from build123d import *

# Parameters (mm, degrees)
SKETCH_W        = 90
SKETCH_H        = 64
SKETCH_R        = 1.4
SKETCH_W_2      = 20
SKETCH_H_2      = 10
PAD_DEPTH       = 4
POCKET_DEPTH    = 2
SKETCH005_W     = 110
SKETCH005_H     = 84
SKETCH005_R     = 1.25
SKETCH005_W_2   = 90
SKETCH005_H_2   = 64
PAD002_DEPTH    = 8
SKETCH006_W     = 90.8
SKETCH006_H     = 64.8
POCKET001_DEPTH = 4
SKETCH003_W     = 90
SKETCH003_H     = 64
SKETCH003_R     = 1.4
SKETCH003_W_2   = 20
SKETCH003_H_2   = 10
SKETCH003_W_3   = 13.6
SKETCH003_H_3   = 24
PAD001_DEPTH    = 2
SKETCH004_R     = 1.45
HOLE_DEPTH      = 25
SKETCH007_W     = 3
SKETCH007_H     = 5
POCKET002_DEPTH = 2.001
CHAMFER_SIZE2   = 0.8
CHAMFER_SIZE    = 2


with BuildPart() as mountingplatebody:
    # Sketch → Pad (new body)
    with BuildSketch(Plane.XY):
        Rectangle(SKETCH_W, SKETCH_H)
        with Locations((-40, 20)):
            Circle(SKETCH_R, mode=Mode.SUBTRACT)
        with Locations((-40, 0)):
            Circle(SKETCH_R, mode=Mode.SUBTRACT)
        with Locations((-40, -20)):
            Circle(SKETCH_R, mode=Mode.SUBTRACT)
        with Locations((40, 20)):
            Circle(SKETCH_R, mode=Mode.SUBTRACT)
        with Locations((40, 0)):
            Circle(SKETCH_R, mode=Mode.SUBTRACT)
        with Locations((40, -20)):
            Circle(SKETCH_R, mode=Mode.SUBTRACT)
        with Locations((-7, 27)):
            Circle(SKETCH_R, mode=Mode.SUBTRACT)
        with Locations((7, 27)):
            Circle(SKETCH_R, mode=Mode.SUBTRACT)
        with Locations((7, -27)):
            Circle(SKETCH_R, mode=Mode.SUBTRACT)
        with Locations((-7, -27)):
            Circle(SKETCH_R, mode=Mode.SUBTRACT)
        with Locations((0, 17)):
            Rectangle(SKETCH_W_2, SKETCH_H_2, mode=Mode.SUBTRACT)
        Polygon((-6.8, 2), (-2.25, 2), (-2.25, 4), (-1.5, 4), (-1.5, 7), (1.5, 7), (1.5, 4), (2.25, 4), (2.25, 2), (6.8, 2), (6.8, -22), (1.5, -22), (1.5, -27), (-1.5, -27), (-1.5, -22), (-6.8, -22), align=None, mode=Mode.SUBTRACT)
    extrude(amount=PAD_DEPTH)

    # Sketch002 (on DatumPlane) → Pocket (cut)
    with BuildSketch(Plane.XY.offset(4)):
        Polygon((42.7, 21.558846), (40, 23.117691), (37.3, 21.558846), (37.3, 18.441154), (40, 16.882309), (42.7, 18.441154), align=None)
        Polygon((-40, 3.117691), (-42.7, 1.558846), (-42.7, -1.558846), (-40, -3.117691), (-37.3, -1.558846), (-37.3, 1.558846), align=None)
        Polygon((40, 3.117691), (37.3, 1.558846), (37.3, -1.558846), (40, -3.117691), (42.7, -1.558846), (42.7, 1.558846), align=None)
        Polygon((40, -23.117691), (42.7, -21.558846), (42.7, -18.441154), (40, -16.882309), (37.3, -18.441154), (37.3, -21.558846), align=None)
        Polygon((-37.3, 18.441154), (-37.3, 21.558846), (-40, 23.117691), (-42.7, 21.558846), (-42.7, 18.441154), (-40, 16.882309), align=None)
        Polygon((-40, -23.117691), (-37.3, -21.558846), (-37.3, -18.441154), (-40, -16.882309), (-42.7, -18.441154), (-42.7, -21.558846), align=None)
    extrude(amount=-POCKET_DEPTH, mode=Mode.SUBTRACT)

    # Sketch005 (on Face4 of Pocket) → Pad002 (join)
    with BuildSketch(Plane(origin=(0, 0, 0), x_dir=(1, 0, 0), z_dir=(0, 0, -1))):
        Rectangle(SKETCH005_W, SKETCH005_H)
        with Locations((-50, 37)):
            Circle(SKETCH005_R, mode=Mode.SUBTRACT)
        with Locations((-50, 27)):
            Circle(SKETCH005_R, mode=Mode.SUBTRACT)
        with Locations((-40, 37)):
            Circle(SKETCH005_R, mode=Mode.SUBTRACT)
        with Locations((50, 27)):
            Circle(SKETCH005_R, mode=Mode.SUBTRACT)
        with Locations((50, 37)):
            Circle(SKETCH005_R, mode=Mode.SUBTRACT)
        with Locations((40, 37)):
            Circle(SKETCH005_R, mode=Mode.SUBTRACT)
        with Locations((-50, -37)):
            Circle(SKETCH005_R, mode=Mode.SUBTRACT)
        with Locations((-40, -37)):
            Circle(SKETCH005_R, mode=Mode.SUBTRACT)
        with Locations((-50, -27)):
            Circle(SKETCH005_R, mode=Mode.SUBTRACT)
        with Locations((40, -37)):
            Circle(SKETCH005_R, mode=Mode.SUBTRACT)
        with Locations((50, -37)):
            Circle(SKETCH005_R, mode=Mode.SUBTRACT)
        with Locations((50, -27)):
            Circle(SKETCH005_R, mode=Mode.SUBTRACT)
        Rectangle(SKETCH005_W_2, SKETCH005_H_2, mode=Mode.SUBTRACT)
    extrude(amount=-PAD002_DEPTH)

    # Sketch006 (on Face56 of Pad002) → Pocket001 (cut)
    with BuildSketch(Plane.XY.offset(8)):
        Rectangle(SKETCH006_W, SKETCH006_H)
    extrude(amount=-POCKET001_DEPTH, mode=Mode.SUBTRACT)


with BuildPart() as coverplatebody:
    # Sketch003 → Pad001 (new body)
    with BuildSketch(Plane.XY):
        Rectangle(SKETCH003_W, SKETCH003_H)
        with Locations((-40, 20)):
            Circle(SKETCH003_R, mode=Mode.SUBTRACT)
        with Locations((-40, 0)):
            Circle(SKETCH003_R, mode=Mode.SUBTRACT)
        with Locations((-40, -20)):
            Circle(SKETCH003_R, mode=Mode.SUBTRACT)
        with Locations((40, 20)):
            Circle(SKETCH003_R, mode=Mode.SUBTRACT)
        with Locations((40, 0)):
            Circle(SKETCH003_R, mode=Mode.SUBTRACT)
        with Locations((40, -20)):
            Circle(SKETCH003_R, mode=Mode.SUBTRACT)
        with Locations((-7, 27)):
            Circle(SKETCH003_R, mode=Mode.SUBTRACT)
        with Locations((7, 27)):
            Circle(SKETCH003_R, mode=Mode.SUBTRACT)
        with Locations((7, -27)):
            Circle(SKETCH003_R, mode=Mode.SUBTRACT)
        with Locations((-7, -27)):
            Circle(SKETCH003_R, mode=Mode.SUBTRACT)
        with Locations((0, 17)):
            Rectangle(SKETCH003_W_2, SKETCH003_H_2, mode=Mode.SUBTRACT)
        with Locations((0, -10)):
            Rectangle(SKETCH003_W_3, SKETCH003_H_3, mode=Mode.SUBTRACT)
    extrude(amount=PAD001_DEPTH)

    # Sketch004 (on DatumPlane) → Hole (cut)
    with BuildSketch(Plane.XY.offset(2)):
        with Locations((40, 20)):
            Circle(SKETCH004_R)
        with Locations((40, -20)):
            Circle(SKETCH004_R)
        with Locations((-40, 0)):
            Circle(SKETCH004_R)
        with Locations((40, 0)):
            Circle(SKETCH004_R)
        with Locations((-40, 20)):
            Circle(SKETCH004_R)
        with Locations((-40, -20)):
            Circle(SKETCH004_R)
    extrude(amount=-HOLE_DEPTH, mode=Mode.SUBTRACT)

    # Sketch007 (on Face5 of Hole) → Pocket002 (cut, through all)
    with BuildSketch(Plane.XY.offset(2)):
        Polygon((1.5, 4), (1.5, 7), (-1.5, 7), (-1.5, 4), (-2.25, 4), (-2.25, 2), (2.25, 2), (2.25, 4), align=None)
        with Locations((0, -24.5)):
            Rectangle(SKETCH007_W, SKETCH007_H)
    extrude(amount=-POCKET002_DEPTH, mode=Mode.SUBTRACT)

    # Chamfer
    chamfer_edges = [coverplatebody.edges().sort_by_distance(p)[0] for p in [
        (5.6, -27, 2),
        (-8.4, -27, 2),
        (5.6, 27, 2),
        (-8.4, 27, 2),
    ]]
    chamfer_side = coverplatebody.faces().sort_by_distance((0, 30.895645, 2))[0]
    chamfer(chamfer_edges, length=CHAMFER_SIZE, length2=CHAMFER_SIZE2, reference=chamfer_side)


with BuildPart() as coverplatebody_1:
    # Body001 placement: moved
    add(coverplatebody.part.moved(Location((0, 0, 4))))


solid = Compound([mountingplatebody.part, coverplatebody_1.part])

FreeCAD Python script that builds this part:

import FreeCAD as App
import Part
import Sketcher
Q = App.Units.Quantity


def edges_at(feature, points):
    """Names of the edges that pass closest to the given points."""
    edges = feature.Shape.Edges
    near = lambda p: min(range(len(edges)), key=lambda i: edges[i].distToShape(Part.Vertex(*p))[0])
    return sorted({f"Edge{near(p) + 1}" for p in points})

doc = App.newDocument("Part")
body = doc.addObject("PartDesign::Body", "Body")

# Sketch on XY plane
sketch1 = doc.addObject("Sketcher::SketchObject", "Sketch")
body.addObject(sketch1)
sketch1.AttachmentSupport = (doc.XY_Plane, [""])
sketch1.MapMode = "FlatFace"
sketch1.addGeometry([
    Part.LineSegment(App.Vector(-45, 32, 0), App.Vector(-45, -32, 0)),  # 0
    Part.LineSegment(App.Vector(-45, -32, 0), App.Vector(45, -32, 0)),  # 1
    Part.LineSegment(App.Vector(45, -32, 0), App.Vector(45, 32, 0)),  # 2
    Part.LineSegment(App.Vector(45, 32, 0), App.Vector(-45, 32, 0)),  # 3
    Part.Circle(App.Vector(-40, -20, 0), App.Vector(0, 0, 1), 1.4),  # 4
    Part.Circle(App.Vector(-7, -27, 0), App.Vector(0, 0, 1), 1.4),  # 5
    Part.Circle(App.Vector(7, -27, 0), App.Vector(0, 0, 1), 1.4),  # 6
    Part.Circle(App.Vector(40, -20, 0), App.Vector(0, 0, 1), 1.4),  # 7
    Part.LineSegment(App.Vector(-6.8, -22, 0), App.Vector(-6.8, 2, 0)),  # 8
    Part.LineSegment(App.Vector(-6.8, 2, 0), App.Vector(-2.2, 2, 0)),  # 9
    Part.LineSegment(App.Vector(-2.2, 2, 0), App.Vector(-2.2, 4, 0)),  # 10
    Part.LineSegment(App.Vector(-2.2, 4, 0), App.Vector(-1.5, 4, 0)),  # 11
    Part.LineSegment(App.Vector(-1.5, 4, 0), App.Vector(-1.5, 7, 0)),  # 12
    Part.LineSegment(App.Vector(-1.5, 7, 0), App.Vector(1.5, 7, 0)),  # 13
    Part.LineSegment(App.Vector(1.5, 7, 0), App.Vector(1.5, 4, 0)),  # 14
    Part.LineSegment(App.Vector(1.5, 4, 0), App.Vector(2.2, 4, 0)),  # 15
    Part.LineSegment(App.Vector(2.2, 4, 0), App.Vector(2.2, 2, 0)),  # 16
    Part.LineSegment(App.Vector(2.2, 2, 0), App.Vector(6.8, 2, 0)),  # 17
    Part.LineSegment(App.Vector(6.8, 2, 0), App.Vector(6.8, -22, 0)),  # 18
    Part.LineSegment(App.Vector(6.8, -22, 0), App.Vector(1.5, -22, 0)),  # 19
    Part.LineSegment(App.Vector(1.5, -22, 0), App.Vector(1.5, -27, 0)),  # 20
    Part.LineSegment(App.Vector(1.5, -27, 0), App.Vector(-1.5, -27, 0)),  # 21
    Part.LineSegment(App.Vector(-1.5, -27, 0), App.Vector(-1.5, -22, 0)),  # 22
    Part.LineSegment(App.Vector(-1.5, -22, 0), App.Vector(-6.8, -22, 0)),  # 23
    Part.Circle(App.Vector(-40, 0, 0), App.Vector(0, 0, 1), 1.4),  # 24
    Part.Circle(App.Vector(-40, 20, 0), App.Vector(0, 0, 1), 1.4),  # 25
    Part.Circle(App.Vector(-7, 27, 0), App.Vector(0, 0, 1), 1.4),  # 26
    Part.Circle(App.Vector(40, 0, 0), App.Vector(0, 0, 1), 1.4),  # 27
    Part.LineSegment(App.Vector(10, 12, 0), App.Vector(-10, 12, 0)),  # 28
    Part.LineSegment(App.Vector(-10, 12, 0), App.Vector(-10, 22, 0)),  # 29
    Part.LineSegment(App.Vector(-10, 22, 0), App.Vector(10, 22, 0)),  # 30
    Part.LineSegment(App.Vector(10, 22, 0), App.Vector(10, 12, 0)),  # 31
    Part.Circle(App.Vector(7, 27, 0), App.Vector(0, 0, 1), 1.4),  # 32
    Part.Circle(App.Vector(40, 20, 0), App.Vector(0, 0, 1), 1.4),  # 33
], False)
sketch1.addConstraint([
    Sketcher.Constraint("Coincident", 0, 2, 1, 1),
    Sketcher.Constraint("Coincident", 1, 2, 2, 1),
    Sketcher.Constraint("Coincident", 2, 2, 3, 1),
    Sketcher.Constraint("Coincident", 3, 2, 0, 1),
    Sketcher.Constraint("Coincident", 8, 2, 9, 1),
    Sketcher.Constraint("Coincident", 9, 2, 10, 1),
    Sketcher.Constraint("Coincident", 10, 2, 11, 1),
    Sketcher.Constraint("Coincident", 11, 2, 12, 1),
    Sketcher.Constraint("Coincident", 12, 2, 13, 1),
    Sketcher.Constraint("Coincident", 13, 2, 14, 1),
    Sketcher.Constraint("Coincident", 14, 2, 15, 1),
    Sketcher.Constraint("Coincident", 15, 2, 16, 1),
    Sketcher.Constraint("Coincident", 16, 2, 17, 1),
    Sketcher.Constraint("Coincident", 17, 2, 18, 1),
    Sketcher.Constraint("Coincident", 18, 2, 19, 1),
    Sketcher.Constraint("Coincident", 19, 2, 20, 1),
    Sketcher.Constraint("Coincident", 20, 2, 21, 1),
    Sketcher.Constraint("Coincident", 21, 2, 22, 1),
    Sketcher.Constraint("Coincident", 22, 2, 23, 1),
    Sketcher.Constraint("Coincident", 23, 2, 8, 1),
    Sketcher.Constraint("Coincident", 28, 2, 29, 1),
    Sketcher.Constraint("Coincident", 29, 2, 30, 1),
    Sketcher.Constraint("Coincident", 30, 2, 31, 1),
    Sketcher.Constraint("Coincident", 31, 2, 28, 1),
    Sketcher.Constraint("Vertical", 0),
    Sketcher.Constraint("Horizontal", 1),
    Sketcher.Constraint("Vertical", 2),
    Sketcher.Constraint("Horizontal", 3),
    Sketcher.Constraint("Vertical", 8),
    Sketcher.Constraint("Horizontal", 9),
    Sketcher.Constraint("Vertical", 10),
    Sketcher.Constraint("Horizontal", 11),
    Sketcher.Constraint("Vertical", 12),
    Sketcher.Constraint("Horizontal", 13),
    Sketcher.Constraint("Vertical", 14),
    Sketcher.Constraint("Horizontal", 15),
    Sketcher.Constraint("Vertical", 16),
    Sketcher.Constraint("Horizontal", 17),
    Sketcher.Constraint("Vertical", 18),
    Sketcher.Constraint("Horizontal", 19),
    Sketcher.Constraint("Vertical", 20),
    Sketcher.Constraint("Horizontal", 21),
    Sketcher.Constraint("Vertical", 22),
    Sketcher.Constraint("Horizontal", 23),
    Sketcher.Constraint("Horizontal", 28),
    Sketcher.Constraint("Vertical", 29),
    Sketcher.Constraint("Horizontal", 30),
    Sketcher.Constraint("Vertical", 31),
    Sketcher.Constraint("Equal", 4, 5),
    Sketcher.Constraint("Equal", 5, 6),
    Sketcher.Constraint("Equal", 6, 7),
    Sketcher.Constraint("Equal", 7, 24),
    Sketcher.Constraint("Equal", 24, 25),
    Sketcher.Constraint("Equal", 25, 26),
    Sketcher.Constraint("Equal", 26, 27),
    Sketcher.Constraint("Equal", 27, 32),
    Sketcher.Constraint("Equal", 32, 33),
    Sketcher.Constraint("Symmetric", 7, 3, 25, 3, -1, 1),
    Sketcher.Constraint("Symmetric", 6, 3, 26, 3, -1, 1),
    Sketcher.Constraint("Symmetric", 24, 3, 27, 3, -1, 1),
    Sketcher.Constraint("Symmetric", 5, 3, 32, 3, -1, 1),
    Sketcher.Constraint("Symmetric", 4, 3, 33, 3, -1, 1),
    Sketcher.Constraint("Symmetric", 0, 2, 2, 2, -1, 1),
    Sketcher.Constraint("Symmetric", 5, 3, 6, 3, -2),
    Sketcher.Constraint("Symmetric", 4, 3, 7, 3, -2),
    Sketcher.Constraint("Symmetric", 11, 2, 14, 2, -2),
    Sketcher.Constraint("Symmetric", 9, 2, 16, 2, -2),
    Sketcher.Constraint("Symmetric", 19, 2, 22, 2, -2),
    Sketcher.Constraint("PointOnObject", 24, 3, -1),
    Sketcher.Constraint("Horizontal", 6, 3, 20, 2),
    Sketcher.Constraint("Vertical", 4, 3, 24, 3),
    Sketcher.Constraint("Vertical", 14, 2, 19, 2),
    Sketcher.Constraint("Equal", 9, 17),
    Sketcher.Constraint("Equal", 21, 12),
    Sketcher.Constraint("Diameter", 4, 2.8),
    Sketcher.Constraint("DistanceX", 1, 1, 1, 2, 90.0),
    Sketcher.Constraint("DistanceX", 13, 1, 13, 2, 3.0),
    Sketcher.Constraint("DistanceX", 28, 2, 28, 1, 20.0),
    Sketcher.Constraint("DistanceY", 0, 2, 0, 1, 64.0),
    Sketcher.Constraint("DistanceY", 8, 1, 8, 2, 24.0),
    Sketcher.Constraint("DistanceY", 10, 1, 10, 2, 2.0),
    Sketcher.Constraint("DistanceY", 20, 2, 20, 1, 5.0),
    Sketcher.Constraint("DistanceY", 29, 1, 29, 2, 10.0),
    Sketcher.Constraint("DistanceX", 19, 2, 19, 1, 5.3),
    Sketcher.Constraint("DistanceX", 4, 3, -1, 1, 40.0),
    Sketcher.Constraint("DistanceY", 4, 3, -1, 1, 20.0),
    Sketcher.Constraint("DistanceX", 5, 3, -1, 1, 7.0),
    Sketcher.Constraint("DistanceY", 5, 3, -1, 1, 27.0),
    Sketcher.Constraint("DistanceX", 28, 2, -1, 1, 10.0),
    Sketcher.Constraint("DistanceY", -1, 1, 28, 2, 12.0),
    Sketcher.Constraint("DistanceX", 9, 1, 9, 2, 4.55),
])
pad1 = doc.addObject("PartDesign::Pad", "Pad")
body.addObject(pad1)
pad1.Profile = sketch1
pad1.Length = 4

# Sketch on XY plane
sketch2 = doc.addObject("Sketcher::SketchObject", "Sketch001")
body.addObject(sketch2)
sketch2.AttachmentSupport = (doc.XY_Plane, [""])
sketch2.MapMode = "FlatFace"
sketch2.AttachmentOffset = App.Placement(App.Vector(0, 0, 4), App.Rotation())
sketch2.addGeometry([
    Part.LineSegment(App.Vector(42.7, 21.6, 0), App.Vector(40, 23.1, 0)),  # 0
    Part.LineSegment(App.Vector(40, 23.1, 0), App.Vector(37.3, 21.6, 0)),  # 1
    Part.LineSegment(App.Vector(37.3, 21.6, 0), App.Vector(37.3, 18.4, 0)),  # 2
    Part.LineSegment(App.Vector(37.3, 18.4, 0), App.Vector(40, 16.9, 0)),  # 3
    Part.LineSegment(App.Vector(40, 16.9, 0), App.Vector(42.7, 18.4, 0)),  # 4
    Part.LineSegment(App.Vector(42.7, 18.4, 0), App.Vector(42.7, 21.6, 0)),  # 5
    Part.LineSegment(App.Vector(-40, 3.1, 0), App.Vector(-42.7, 1.6, 0)),  # 6
    Part.LineSegment(App.Vector(-42.7, 1.6, 0), App.Vector(-42.7, -1.6, 0)),  # 7
    Part.LineSegment(App.Vector(-42.7, -1.6, 0), App.Vector(-40, -3.1, 0)),  # 8
    Part.LineSegment(App.Vector(-40, -3.1, 0), App.Vector(-37.3, -1.6, 0)),  # 9
    Part.LineSegment(App.Vector(-37.3, -1.6, 0), App.Vector(-37.3, 1.6, 0)),  # 10
    Part.LineSegment(App.Vector(-37.3, 1.6, 0), App.Vector(-40, 3.1, 0)),  # 11
    Part.LineSegment(App.Vector(40, 3.1, 0), App.Vector(37.3, 1.6, 0)),  # 12
    Part.LineSegment(App.Vector(37.3, 1.6, 0), App.Vector(37.3, -1.6, 0)),  # 13
    Part.LineSegment(App.Vector(37.3, -1.6, 0), App.Vector(40, -3.1, 0)),  # 14
    Part.LineSegment(App.Vector(40, -3.1, 0), App.Vector(42.7, -1.6, 0)),  # 15
    Part.LineSegment(App.Vector(42.7, -1.6, 0), App.Vector(42.7, 1.6, 0)),  # 16
    Part.LineSegment(App.Vector(42.7, 1.6, 0), App.Vector(40, 3.1, 0)),  # 17
    Part.LineSegment(App.Vector(40, -23.1, 0), App.Vector(42.7, -21.6, 0)),  # 18
    Part.LineSegment(App.Vector(42.7, -21.6, 0), App.Vector(42.7, -18.4, 0)),  # 19
    Part.LineSegment(App.Vector(42.7, -18.4, 0), App.Vector(40, -16.9, 0)),  # 20
    Part.LineSegment(App.Vector(40, -16.9, 0), App.Vector(37.3, -18.4, 0)),  # 21
    Part.LineSegment(App.Vector(37.3, -18.4, 0), App.Vector(37.3, -21.6, 0)),  # 22
    Part.LineSegment(App.Vector(37.3, -21.6, 0), App.Vector(40, -23.1, 0)),  # 23
    Part.LineSegment(App.Vector(-37.3, 18.4, 0), App.Vector(-37.3, 21.6, 0)),  # 24
    Part.LineSegment(App.Vector(-37.3, 21.6, 0), App.Vector(-40, 23.1, 0)),  # 25
    Part.LineSegment(App.Vector(-40, 23.1, 0), App.Vector(-42.7, 21.6, 0)),  # 26
    Part.LineSegment(App.Vector(-42.7, 21.6, 0), App.Vector(-42.7, 18.4, 0)),  # 27
    Part.LineSegment(App.Vector(-42.7, 18.4, 0), App.Vector(-40, 16.9, 0)),  # 28
    Part.LineSegment(App.Vector(-40, 16.9, 0), App.Vector(-37.3, 18.4, 0)),  # 29
    Part.LineSegment(App.Vector(-40, -23.1, 0), App.Vector(-37.3, -21.6, 0)),  # 30
    Part.LineSegment(App.Vector(-37.3, -21.6, 0), App.Vector(-37.3, -18.4, 0)),  # 31
    Part.LineSegment(App.Vector(-37.3, -18.4, 0), App.Vector(-40, -16.9, 0)),  # 32
    Part.LineSegment(App.Vector(-40, -16.9, 0), App.Vector(-42.7, -18.4, 0)),  # 33
    Part.LineSegment(App.Vector(-42.7, -18.4, 0), App.Vector(-42.7, -21.6, 0)),  # 34
    Part.LineSegment(App.Vector(-42.7, -21.6, 0), App.Vector(-40, -23.1, 0)),  # 35
], False)
sketch2.addConstraint([
    Sketcher.Constraint("Coincident", 0, 2, 1, 1),
    Sketcher.Constraint("Coincident", 1, 2, 2, 1),
    Sketcher.Constraint("Coincident", 2, 2, 3, 1),
    Sketcher.Constraint("Coincident", 3, 2, 4, 1),
    Sketcher.Constraint("Coincident", 4, 2, 5, 1),
    Sketcher.Constraint("Coincident", 5, 2, 0, 1),
    Sketcher.Constraint("Coincident", 6, 2, 7, 1),
    Sketcher.Constraint("Coincident", 7, 2, 8, 1),
    Sketcher.Constraint("Coincident", 8, 2, 9, 1),
    Sketcher.Constraint("Coincident", 9, 2, 10, 1),
    Sketcher.Constraint("Coincident", 10, 2, 11, 1),
    Sketcher.Constraint("Coincident", 11, 2, 6, 1),
    Sketcher.Constraint("Coincident", 12, 2, 13, 1),
    Sketcher.Constraint("Coincident", 13, 2, 14, 1),
    Sketcher.Constraint("Coincident", 14, 2, 15, 1),
    Sketcher.Constraint("Coincident", 15, 2, 16, 1),
    Sketcher.Constraint("Coincident", 16, 2, 17, 1),
    Sketcher.Constraint("Coincident", 17, 2, 12, 1),
    Sketcher.Constraint("Coincident", 18, 2, 19, 1),
    Sketcher.Constraint("Coincident", 19, 2, 20, 1),
    Sketcher.Constraint("Coincident", 20, 2, 21, 1),
    Sketcher.Constraint("Coincident", 21, 2, 22, 1),
    Sketcher.Constraint("Coincident", 22, 2, 23, 1),
    Sketcher.Constraint("Coincident", 23, 2, 18, 1),
    Sketcher.Constraint("Coincident", 24, 2, 25, 1),
    Sketcher.Constraint("Coincident", 25, 2, 26, 1),
    Sketcher.Constraint("Coincident", 26, 2, 27, 1),
    Sketcher.Constraint("Coincident", 27, 2, 28, 1),
    Sketcher.Constraint("Coincident", 28, 2, 29, 1),
    Sketcher.Constraint("Coincident", 29, 2, 24, 1),
    Sketcher.Constraint("Coincident", 30, 2, 31, 1),
    Sketcher.Constraint("Coincident", 31, 2, 32, 1),
    Sketcher.Constraint("Coincident", 32, 2, 33, 1),
    Sketcher.Constraint("Coincident", 33, 2, 34, 1),
    Sketcher.Constraint("Coincident", 34, 2, 35, 1),
    Sketcher.Constraint("Coincident", 35, 2, 30, 1),
    Sketcher.Constraint("Vertical", 2),
    Sketcher.Constraint("Vertical", 5),
    Sketcher.Constraint("Vertical", 7),
    Sketcher.Constraint("Vertical", 10),
    Sketcher.Constraint("Vertical", 13),
    Sketcher.Constraint("Vertical", 16),
    Sketcher.Constraint("Vertical", 19),
    Sketcher.Constraint("Vertical", 22),
    Sketcher.Constraint("Vertical", 24),
    Sketcher.Constraint("Vertical", 27),
    Sketcher.Constraint("Vertical", 31),
    Sketcher.Constraint("Vertical", 34),
    Sketcher.Constraint("Symmetric", 9, 2, 12, 2, -1, 1),
    Sketcher.Constraint("Symmetric", 11, 2, 14, 2, -1, 1),
    Sketcher.Constraint("Symmetric", 6, 2, 15, 2, -1, 1),
    Sketcher.Constraint("Symmetric", 8, 2, 17, 2, -1, 1),
    Sketcher.Constraint("Symmetric", 22, 2, 24, 2, -1, 1),
    Sketcher.Constraint("Symmetric", 23, 2, 25, 2, -1, 1),
    Sketcher.Constraint("Symmetric", 18, 2, 26, 2, -1, 1),
    Sketcher.Constraint("Symmetric", 20, 2, 28, 2, -1, 1),
    Sketcher.Constraint("Symmetric", 1, 2, 30, 2, -1, 1),
    Sketcher.Constraint("Symmetric", 3, 2, 32, 2, -1, 1),
    Sketcher.Constraint("Symmetric", 4, 2, 33, 2, -1, 1),
    Sketcher.Constraint("Symmetric", 0, 2, 35, 2, -1, 1),
    Sketcher.Constraint("Symmetric", 8, 2, 14, 2, -2),
    Sketcher.Constraint("Symmetric", 1, 2, 24, 2, -2),
    Sketcher.Constraint("Symmetric", 0, 2, 25, 2, -2),
    Sketcher.Constraint("Symmetric", 5, 2, 26, 2, -2),
    Sketcher.Constraint("Symmetric", 3, 2, 28, 2, -2),
    Sketcher.Constraint("Parallel", 0, 3),
    Sketcher.Constraint("Parallel", 1, 4),
    Sketcher.Constraint("Parallel", 4, 6),
    Sketcher.Constraint("Parallel", 3, 8),
    Sketcher.Constraint("Parallel", 6, 9),
    Sketcher.Constraint("Parallel", 8, 11),
    Sketcher.Constraint("Parallel", 11, 14),
    Sketcher.Constraint("Parallel", 14, 17),
    Sketcher.Constraint("Parallel", 15, 18),
    Sketcher.Constraint("Parallel", 17, 20),
    Sketcher.Constraint("Parallel", 18, 21),
    Sketcher.Constraint("Parallel", 25, 28),
    Sketcher.Constraint("Parallel", 26, 29),
    Sketcher.Constraint("Parallel", 28, 32),
    Sketcher.Constraint("Parallel", 32, 35),
    Sketcher.Constraint("Horizontal", 2, 2, 4, 2),
    Sketcher.Constraint("Horizontal", 1, 2, 5, 2),
    Sketcher.Constraint("Horizontal", 7, 2, 9, 2),
    Sketcher.Constraint("Vertical", 2, 2, 12, 2),
    Sketcher.Constraint("Vertical", 3, 2, 14, 2),
    Sketcher.Constraint("Equal", 5, 7),
    Sketcher.Constraint("Angle", 0, Q("150.000012 deg")),
    Sketcher.Constraint("DistanceX", -1, 1, 0, 2, 40.0),
    Sketcher.Constraint("DistanceY", 6, 2, 1, 2, 20.0),
    Sketcher.Constraint("DistanceX", -1, 1, 1, 2, 37.3),
    Sketcher.Constraint("DistanceY", 2, 2, 2, 1, 3.117692),
])
pocket1 = doc.addObject("PartDesign::Pocket", "Pocket")
body.addObject(pocket1)
pocket1.Profile = sketch2
pocket1.Length = 2

# Sketch on XY plane
sketch3 = doc.addObject("Sketcher::SketchObject", "Sketch002")
body.addObject(sketch3)
sketch3.AttachmentSupport = (doc.XY_Plane, [""])
sketch3.MapMode = "FlatFace"
sketch3.addGeometry([
    Part.LineSegment(App.Vector(-55, -42, 0), App.Vector(-55, 42, 0)),  # 0
    Part.LineSegment(App.Vector(-55, 42, 0), App.Vector(55, 42, 0)),  # 1
    Part.LineSegment(App.Vector(55, 42, 0), App.Vector(55, -42, 0)),  # 2
    Part.LineSegment(App.Vector(55, -42, 0), App.Vector(-55, -42, 0)),  # 3
    Part.Circle(App.Vector(-50, 37, 0), App.Vector(0, 0, 1), 1.2),  # 4
    Part.Circle(App.Vector(-40, 37, 0), App.Vector(0, 0, 1), 1.2),  # 5
    Part.Circle(App.Vector(-50, 27, 0), App.Vector(0, 0, 1), 1.2),  # 6
    Part.Circle(App.Vector(40, 37, 0), App.Vector(0, 0, 1), 1.2),  # 7
    Part.Circle(App.Vector(50, 37, 0), App.Vector(0, 0, 1), 1.2),  # 8
    Part.Circle(App.Vector(50, 27, 0), App.Vector(0, 0, 1), 1.2),  # 9
    Part.Circle(App.Vector(-50, -27, 0), App.Vector(0, 0, 1), 1.2),  # 10
    Part.Circle(App.Vector(-50, -37, 0), App.Vector(0, 0, 1), 1.2),  # 11
    Part.Circle(App.Vector(-40, -37, 0), App.Vector(0, 0, 1), 1.2),  # 12
    Part.LineSegment(App.Vector(45, 32, 0), App.Vector(-45, 32, 0)),  # 13
    Part.LineSegment(App.Vector(-45, 32, 0), App.Vector(-45, -32, 0)),  # 14
    Part.LineSegment(App.Vector(-45, -32, 0), App.Vector(45, -32, 0)),  # 15
    Part.LineSegment(App.Vector(45, -32, 0), App.Vector(45, 32, 0)),  # 16
    Part.Circle(App.Vector(50, -27, 0), App.Vector(0, 0, 1), 1.2),  # 17
    Part.Circle(App.Vector(40, -37, 0), App.Vector(0, 0, 1), 1.2),  # 18
    Part.Circle(App.Vector(50, -37, 0), App.Vector(0, 0, 1), 1.2),  # 19
], False)
sketch3.addConstraint([
    Sketcher.Constraint("Coincident", 0, 2, 1, 1),
    Sketcher.Constraint("Coincident", 1, 2, 2, 1),
    Sketcher.Constraint("Coincident", 2, 2, 3, 1),
    Sketcher.Constraint("Coincident", 3, 2, 0, 1),
    Sketcher.Constraint("Coincident", 13, 2, 14, 1),
    Sketcher.Constraint("Coincident", 14, 2, 15, 1),
    Sketcher.Constraint("Coincident", 15, 2, 16, 1),
    Sketcher.Constraint("Coincident", 16, 2, 13, 1),
    Sketcher.Constraint("Vertical", 0),
    Sketcher.Constraint("Horizontal", 1),
    Sketcher.Constraint("Vertical", 2),
    Sketcher.Constraint("Horizontal", 3),
    Sketcher.Constraint("Horizontal", 13),
    Sketcher.Constraint("Vertical", 14),
    Sketcher.Constraint("Horizontal", 15),
    Sketcher.Constraint("Vertical", 16),
    Sketcher.Constraint("Equal", 4, 5),
    Sketcher.Constraint("Equal", 5, 6),
    Sketcher.Constraint("Equal", 6, 7),
    Sketcher.Constraint("Equal", 7, 8),
    Sketcher.Constraint("Equal", 8, 9),
    Sketcher.Constraint("Equal", 9, 10),
    Sketcher.Constraint("Equal", 10, 11),
    Sketcher.Constraint("Equal", 11, 12),
    Sketcher.Constraint("Equal", 12, 17),
    Sketcher.Constraint("Equal", 17, 18),
    Sketcher.Constraint("Equal", 18, 19),
    Sketcher.Constraint("Symmetric", 9, 3, 10, 3, -1, 1),
    Sketcher.Constraint("Symmetric", 8, 3, 11, 3, -1, 1),
    Sketcher.Constraint("Symmetric", 7, 3, 12, 3, -1, 1),
    Sketcher.Constraint("Symmetric", 6, 3, 17, 3, -1, 1),
    Sketcher.Constraint("Symmetric", 5, 3, 18, 3, -1, 1),
    Sketcher.Constraint("Symmetric", 4, 3, 19, 3, -1, 1),
    Sketcher.Constraint("Symmetric", 0, 2, 2, 2, -1, 1),
    Sketcher.Constraint("Symmetric", 13, 2, 15, 2, -1, 1),
    Sketcher.Constraint("Symmetric", 5, 3, 7, 3, -2),
    Sketcher.Constraint("Symmetric", 4, 3, 8, 3, -2),
    Sketcher.Constraint("Symmetric", 6, 3, 9, 3, -2),
    Sketcher.Constraint("Horizontal", 4, 3, 5, 3),
    Sketcher.Constraint("Vertical", 4, 3, 6, 3),
    Sketcher.Constraint("Diameter", 4, 2.5),
    Sketcher.Constraint("DistanceX", 1, 1, 1, 2, 110.0),
    Sketcher.Constraint("DistanceX", 13, 2, 13, 1, 90.0),
    Sketcher.Constraint("DistanceY", 0, 1, 0, 2, 84.0),
    Sketcher.Constraint("DistanceY", 14, 2, 14, 1, 64.0),
    Sketcher.Constraint("DistanceX", 4, 3, -1, 1, 50.0),
    Sketcher.Constraint("DistanceY", -1, 1, 4, 3, 37.0),
    Sketcher.Constraint("DistanceX", 5, 3, -1, 1, 40.0),
    Sketcher.Constraint("DistanceY", -1, 1, 6, 3, 27.0),
])
pad2 = doc.addObject("PartDesign::Pad", "Pad001")
body.addObject(pad2)
pad2.Profile = sketch3
pad2.Length = 8

# Sketch on XY plane
sketch4 = doc.addObject("Sketcher::SketchObject", "Sketch003")
body.addObject(sketch4)
sketch4.AttachmentSupport = (doc.XY_Plane, [""])
sketch4.MapMode = "FlatFace"
sketch4.AttachmentOffset = App.Placement(App.Vector(0, 0, 8), App.Rotation())
sketch4.addGeometry([
    Part.LineSegment(App.Vector(-45, 32, 0), App.Vector(-45, -32, 0)),
    Part.LineSegment(App.Vector(-45, -32, 0), App.Vector(45, -32, 0)),
    Part.LineSegment(App.Vector(45, -32, 0), App.Vector(45, 32, 0)),
    Part.LineSegment(App.Vector(45, 32, 0), App.Vector(-45, 32, 0)),
], False)
sketch4.addConstraint([
    Sketcher.Constraint("Coincident", 0, 2, 1, 1),
    Sketcher.Constraint("Coincident", 1, 2, 2, 1),
    Sketcher.Constraint("Coincident", 2, 2, 3, 1),
    Sketcher.Constraint("Coincident", 3, 2, 0, 1),
    Sketcher.Constraint("Vertical", 0),
    Sketcher.Constraint("Horizontal", 1),
    Sketcher.Constraint("Vertical", 2),
    Sketcher.Constraint("Horizontal", 3),
    Sketcher.Constraint("Symmetric", 0, 2, 2, 2, -1, 1),
    Sketcher.Constraint("DistanceX", 1, 1, 1, 2, 90.8),
    Sketcher.Constraint("DistanceY", 0, 2, 0, 1, 64.8),
])
pocket2 = doc.addObject("PartDesign::Pocket", "Pocket001")
body.addObject(pocket2)
pocket2.Profile = sketch4
pocket2.Length = 4
body2 = doc.addObject("PartDesign::Body", "Body001")

# Sketch on XY plane
sketch5 = doc.addObject("Sketcher::SketchObject", "Sketch004")
body2.addObject(sketch5)
sketch5.AttachmentSupport = (doc.getObject("XY_Plane001"), [""])
sketch5.MapMode = "FlatFace"
sketch5.addGeometry([
    Part.LineSegment(App.Vector(-45, 32, 0), App.Vector(-45, -32, 0)),  # 0
    Part.LineSegment(App.Vector(-45, -32, 0), App.Vector(45, -32, 0)),  # 1
    Part.LineSegment(App.Vector(45, -32, 0), App.Vector(45, 32, 0)),  # 2
    Part.LineSegment(App.Vector(45, 32, 0), App.Vector(-45, 32, 0)),  # 3
    Part.Circle(App.Vector(-40, -20, 0), App.Vector(0, 0, 1), 1.4),  # 4
    Part.Circle(App.Vector(-7, -27, 0), App.Vector(0, 0, 1), 1.4),  # 5
    Part.Circle(App.Vector(7, -27, 0), App.Vector(0, 0, 1), 1.4),  # 6
    Part.Circle(App.Vector(40, -20, 0), App.Vector(0, 0, 1), 1.4),  # 7
    Part.LineSegment(App.Vector(6.8, -22, 0), App.Vector(-6.8, -22, 0)),  # 8
    Part.LineSegment(App.Vector(-6.8, -22, 0), App.Vector(-6.8, 2, 0)),  # 9
    Part.LineSegment(App.Vector(-6.8, 2, 0), App.Vector(6.8, 2, 0)),  # 10
    Part.LineSegment(App.Vector(6.8, 2, 0), App.Vector(6.8, -22, 0)),  # 11
    Part.Circle(App.Vector(-40, 0, 0), App.Vector(0, 0, 1), 1.4),  # 12
    Part.Circle(App.Vector(-40, 20, 0), App.Vector(0, 0, 1), 1.4),  # 13
    Part.Circle(App.Vector(-7, 27, 0), App.Vector(0, 0, 1), 1.4),  # 14
    Part.Circle(App.Vector(40, 0, 0), App.Vector(0, 0, 1), 1.4),  # 15
    Part.LineSegment(App.Vector(10, 12, 0), App.Vector(-10, 12, 0)),  # 16
    Part.LineSegment(App.Vector(-10, 12, 0), App.Vector(-10, 22, 0)),  # 17
    Part.LineSegment(App.Vector(-10, 22, 0), App.Vector(10, 22, 0)),  # 18
    Part.LineSegment(App.Vector(10, 22, 0), App.Vector(10, 12, 0)),  # 19
    Part.Circle(App.Vector(7, 27, 0), App.Vector(0, 0, 1), 1.4),  # 20
    Part.Circle(App.Vector(40, 20, 0), App.Vector(0, 0, 1), 1.4),  # 21
], False)
sketch5.addConstraint([
    Sketcher.Constraint("Coincident", 0, 2, 1, 1),
    Sketcher.Constraint("Coincident", 1, 2, 2, 1),
    Sketcher.Constraint("Coincident", 2, 2, 3, 1),
    Sketcher.Constraint("Coincident", 3, 2, 0, 1),
    Sketcher.Constraint("Coincident", 8, 2, 9, 1),
    Sketcher.Constraint("Coincident", 9, 2, 10, 1),
    Sketcher.Constraint("Coincident", 10, 2, 11, 1),
    Sketcher.Constraint("Coincident", 11, 2, 8, 1),
    Sketcher.Constraint("Coincident", 16, 2, 17, 1),
    Sketcher.Constraint("Coincident", 17, 2, 18, 1),
    Sketcher.Constraint("Coincident", 18, 2, 19, 1),
    Sketcher.Constraint("Coincident", 19, 2, 16, 1),
    Sketcher.Constraint("Vertical", 0),
    Sketcher.Constraint("Horizontal", 1),
    Sketcher.Constraint("Vertical", 2),
    Sketcher.Constraint("Horizontal", 3),
    Sketcher.Constraint("Horizontal", 8),
    Sketcher.Constraint("Vertical", 9),
    Sketcher.Constraint("Horizontal", 10),
    Sketcher.Constraint("Vertical", 11),
    Sketcher.Constraint("Horizontal", 16),
    Sketcher.Constraint("Vertical", 17),
    Sketcher.Constraint("Horizontal", 18),
    Sketcher.Constraint("Vertical", 19),
    Sketcher.Constraint("Equal", 4, 5),
    Sketcher.Constraint("Equal", 5, 6),
    Sketcher.Constraint("Equal", 6, 7),
    Sketcher.Constraint("Equal", 7, 12),
    Sketcher.Constraint("Equal", 12, 13),
    Sketcher.Constraint("Equal", 13, 14),
    Sketcher.Constraint("Equal", 14, 15),
    Sketcher.Constraint("Equal", 15, 20),
    Sketcher.Constraint("Equal", 20, 21),
    Sketcher.Constraint("Symmetric", 7, 3, 13, 3, -1, 1),
    Sketcher.Constraint("Symmetric", 6, 3, 14, 3, -1, 1),
    Sketcher.Constraint("Symmetric", 12, 3, 15, 3, -1, 1),
    Sketcher.Constraint("Symmetric", 5, 3, 20, 3, -1, 1),
    Sketcher.Constraint("Symmetric", 4, 3, 21, 3, -1, 1),
    Sketcher.Constraint("Symmetric", 0, 2, 2, 2, -1, 1),
    Sketcher.Constraint("Symmetric", 5, 3, 6, 3, -2),
    Sketcher.Constraint("Symmetric", 4, 3, 7, 3, -2),
    Sketcher.Constraint("PointOnObject", 12, 3, -1),
    Sketcher.Constraint("Vertical", 4, 3, 12, 3),
    Sketcher.Constraint("Diameter", 4, 2.8),
    Sketcher.Constraint("DistanceX", 1, 1, 1, 2, 90.0),
    Sketcher.Constraint("DistanceX", 16, 2, 16, 1, 20.0),
    Sketcher.Constraint("DistanceY", 0, 2, 0, 1, 64.0),
    Sketcher.Constraint("DistanceY", 9, 1, 9, 2, 24.0),
    Sketcher.Constraint("DistanceY", 17, 1, 17, 2, 10.0),
    Sketcher.Constraint("DistanceX", 8, 2, 8, 1, 13.6),
    Sketcher.Constraint("DistanceX", 4, 3, -1, 1, 40.0),
    Sketcher.Constraint("DistanceY", 4, 3, -1, 1, 20.0),
    Sketcher.Constraint("DistanceX", 5, 3, -1, 1, 7.0),
    Sketcher.Constraint("DistanceY", 5, 3, -1, 1, 27.0),
    Sketcher.Constraint("DistanceY", 8, 2, -1, 1, 22.0),
    Sketcher.Constraint("DistanceX", 16, 2, -1, 1, 10.0),
    Sketcher.Constraint("DistanceY", -1, 1, 16, 2, 12.0),
    Sketcher.Constraint("DistanceX", 8, 2, -1, 1, 6.8),
])
pad3 = doc.addObject("PartDesign::Pad", "Pad002")
body2.addObject(pad3)
pad3.Profile = sketch5
pad3.Length = 2

# Sketch on XY plane
sketch6 = doc.addObject("Sketcher::SketchObject", "Sketch005")
body2.addObject(sketch6)
sketch6.AttachmentSupport = (doc.getObject("XY_Plane001"), [""])
sketch6.MapMode = "FlatFace"
sketch6.AttachmentOffset = App.Placement(App.Vector(0, 0, 2), App.Rotation())
sketch6.addGeometry([
    Part.Circle(App.Vector(40, 20, 0), App.Vector(0, 0, 1), 1.4),  # 0
    Part.Circle(App.Vector(40, -20, 0), App.Vector(0, 0, 1), 1.4),  # 1
    Part.Circle(App.Vector(-40, 0, 0), App.Vector(0, 0, 1), 1.4),  # 2
    Part.Circle(App.Vector(40, 0, 0), App.Vector(0, 0, 1), 1.4),  # 3
    Part.Circle(App.Vector(-40, 20, 0), App.Vector(0, 0, 1), 1.4),  # 4
    Part.Circle(App.Vector(-40, -20, 0), App.Vector(0, 0, 1), 1.4),  # 5
], False)
sketch6.addConstraint([
    Sketcher.Constraint("Equal", 0, 1),
    Sketcher.Constraint("Equal", 1, 2),
    Sketcher.Constraint("Equal", 2, 3),
    Sketcher.Constraint("Equal", 3, 4),
    Sketcher.Constraint("Equal", 4, 5),
    Sketcher.Constraint("Symmetric", 2, 3, 3, 3, -1, 1),
    Sketcher.Constraint("Symmetric", 1, 3, 4, 3, -1, 1),
    Sketcher.Constraint("Symmetric", 0, 3, 5, 3, -1, 1),
    Sketcher.Constraint("Symmetric", 0, 3, 4, 3, -2),
    Sketcher.Constraint("PointOnObject", 2, 3, -1),
    Sketcher.Constraint("Vertical", 1, 3, 3, 3),
    Sketcher.Constraint("Diameter", 0, 2.9),
    Sketcher.Constraint("DistanceX", -1, 1, 0, 3, 40.0),
    Sketcher.Constraint("DistanceY", -1, 1, 0, 3, 20.0),
])
pocket3 = doc.addObject("PartDesign::Pocket", "Pocket002")
body2.addObject(pocket3)
pocket3.Profile = sketch6
pocket3.Length = 25

# Sketch on XY plane
sketch7 = doc.addObject("Sketcher::SketchObject", "Sketch006")
body2.addObject(sketch7)
sketch7.AttachmentSupport = (doc.getObject("XY_Plane001"), [""])
sketch7.MapMode = "FlatFace"
sketch7.AttachmentOffset = App.Placement(App.Vector(0, 0, 2), App.Rotation())
sketch7.addGeometry([
    Part.LineSegment(App.Vector(1.5, 4, 0), App.Vector(1.5, 7, 0)),  # 0
    Part.LineSegment(App.Vector(1.5, 7, 0), App.Vector(-1.5, 7, 0)),  # 1
    Part.LineSegment(App.Vector(-1.5, 7, 0), App.Vector(-1.5, 4, 0)),  # 2
    Part.LineSegment(App.Vector(-1.5, 4, 0), App.Vector(-2.2, 4, 0)),  # 3
    Part.LineSegment(App.Vector(-2.2, 4, 0), App.Vector(-2.2, 2, 0)),  # 4
    Part.LineSegment(App.Vector(-2.2, 2, 0), App.Vector(2.2, 2, 0)),  # 5
    Part.LineSegment(App.Vector(2.2, 2, 0), App.Vector(2.2, 4, 0)),  # 6
    Part.LineSegment(App.Vector(2.2, 4, 0), App.Vector(1.5, 4, 0)),  # 7
    Part.LineSegment(App.Vector(-1.5, -22, 0), App.Vector(-1.5, -27, 0)),  # 8
    Part.LineSegment(App.Vector(-1.5, -27, 0), App.Vector(1.5, -27, 0)),  # 9
    Part.LineSegment(App.Vector(1.5, -27, 0), App.Vector(1.5, -22, 0)),  # 10
    Part.LineSegment(App.Vector(1.5, -22, 0), App.Vector(-1.5, -22, 0)),  # 11
], False)
sketch7.addConstraint([
    Sketcher.Constraint("Coincident", 0, 2, 1, 1),
    Sketcher.Constraint("Coincident", 1, 2, 2, 1),
    Sketcher.Constraint("Coincident", 2, 2, 3, 1),
    Sketcher.Constraint("Coincident", 3, 2, 4, 1),
    Sketcher.Constraint("Coincident", 4, 2, 5, 1),
    Sketcher.Constraint("Coincident", 5, 2, 6, 1),
    Sketcher.Constraint("Coincident", 6, 2, 7, 1),
    Sketcher.Constraint("Coincident", 7, 2, 0, 1),
    Sketcher.Constraint("Coincident", 8, 2, 9, 1),
    Sketcher.Constraint("Coincident", 9, 2, 10, 1),
    Sketcher.Constraint("Coincident", 10, 2, 11, 1),
    Sketcher.Constraint("Coincident", 11, 2, 8, 1),
    Sketcher.Constraint("Vertical", 0),
    Sketcher.Constraint("Horizontal", 1),
    Sketcher.Constraint("Vertical", 2),
    Sketcher.Constraint("Horizontal", 3),
    Sketcher.Constraint("Vertical", 4),
    Sketcher.Constraint("Horizontal", 5),
    Sketcher.Constraint("Vertical", 6),
    Sketcher.Constraint("Horizontal", 7),
    Sketcher.Constraint("Vertical", 8),
    Sketcher.Constraint("Horizontal", 9),
    Sketcher.Constraint("Vertical", 10),
    Sketcher.Constraint("Horizontal", 11),
    Sketcher.Constraint("Symmetric", 3, 2, 6, 2, -2),
    Sketcher.Constraint("Vertical", 2, 2, 8, 2),
    Sketcher.Constraint("Vertical", 7, 2, 9, 2),
    Sketcher.Constraint("Equal", 3, 7),
    Sketcher.Constraint("Equal", 11, 0),
    Sketcher.Constraint("DistanceX", 1, 2, 1, 1, 3.0),
    Sketcher.Constraint("DistanceY", 4, 2, 4, 1, 2.0),
    Sketcher.Constraint("DistanceY", 8, 2, 8, 1, 5.0),
    Sketcher.Constraint("DistanceX", 5, 1, 5, 2, 4.5),
    Sketcher.Constraint("DistanceY", -1, 1, 0, 2, 7.0),
    Sketcher.Constraint("DistanceY", 8, 2, -1, 1, 27.0),
])
pocket4 = doc.addObject("PartDesign::Pocket", "Pocket003")
body2.addObject(pocket4)
pocket4.Profile = sketch7
pocket4.Type = "ThroughAll"
doc.recompute()

chamfer = doc.addObject("PartDesign::Chamfer", "Chamfer")
body2.addObject(chamfer)
chamfer.Base = (pocket4, edges_at(pocket4, [
    (5.6, -27, 2),
    (-8.4, -27, 2),
    (5.6, 27, 2),
    (-8.4, 27, 2),
]))
chamfer.ChamferType = "Two distances"
chamfer.Size = 2
chamfer.Size2 = 0.8
body3 = doc.addObject("PartDesign::Body", "Body002")
doc.recompute()

body2.Placement = App.Placement(App.Vector(0, 0, 4), App.Rotation(App.Vector(0, 0, 1), 0))
boolean = doc.addObject("PartDesign::Boolean", "Boolean")
body3.addObject(boolean)
boolean.Type = "Fuse"
boolean.addObjects([body2])

doc.recompute()
